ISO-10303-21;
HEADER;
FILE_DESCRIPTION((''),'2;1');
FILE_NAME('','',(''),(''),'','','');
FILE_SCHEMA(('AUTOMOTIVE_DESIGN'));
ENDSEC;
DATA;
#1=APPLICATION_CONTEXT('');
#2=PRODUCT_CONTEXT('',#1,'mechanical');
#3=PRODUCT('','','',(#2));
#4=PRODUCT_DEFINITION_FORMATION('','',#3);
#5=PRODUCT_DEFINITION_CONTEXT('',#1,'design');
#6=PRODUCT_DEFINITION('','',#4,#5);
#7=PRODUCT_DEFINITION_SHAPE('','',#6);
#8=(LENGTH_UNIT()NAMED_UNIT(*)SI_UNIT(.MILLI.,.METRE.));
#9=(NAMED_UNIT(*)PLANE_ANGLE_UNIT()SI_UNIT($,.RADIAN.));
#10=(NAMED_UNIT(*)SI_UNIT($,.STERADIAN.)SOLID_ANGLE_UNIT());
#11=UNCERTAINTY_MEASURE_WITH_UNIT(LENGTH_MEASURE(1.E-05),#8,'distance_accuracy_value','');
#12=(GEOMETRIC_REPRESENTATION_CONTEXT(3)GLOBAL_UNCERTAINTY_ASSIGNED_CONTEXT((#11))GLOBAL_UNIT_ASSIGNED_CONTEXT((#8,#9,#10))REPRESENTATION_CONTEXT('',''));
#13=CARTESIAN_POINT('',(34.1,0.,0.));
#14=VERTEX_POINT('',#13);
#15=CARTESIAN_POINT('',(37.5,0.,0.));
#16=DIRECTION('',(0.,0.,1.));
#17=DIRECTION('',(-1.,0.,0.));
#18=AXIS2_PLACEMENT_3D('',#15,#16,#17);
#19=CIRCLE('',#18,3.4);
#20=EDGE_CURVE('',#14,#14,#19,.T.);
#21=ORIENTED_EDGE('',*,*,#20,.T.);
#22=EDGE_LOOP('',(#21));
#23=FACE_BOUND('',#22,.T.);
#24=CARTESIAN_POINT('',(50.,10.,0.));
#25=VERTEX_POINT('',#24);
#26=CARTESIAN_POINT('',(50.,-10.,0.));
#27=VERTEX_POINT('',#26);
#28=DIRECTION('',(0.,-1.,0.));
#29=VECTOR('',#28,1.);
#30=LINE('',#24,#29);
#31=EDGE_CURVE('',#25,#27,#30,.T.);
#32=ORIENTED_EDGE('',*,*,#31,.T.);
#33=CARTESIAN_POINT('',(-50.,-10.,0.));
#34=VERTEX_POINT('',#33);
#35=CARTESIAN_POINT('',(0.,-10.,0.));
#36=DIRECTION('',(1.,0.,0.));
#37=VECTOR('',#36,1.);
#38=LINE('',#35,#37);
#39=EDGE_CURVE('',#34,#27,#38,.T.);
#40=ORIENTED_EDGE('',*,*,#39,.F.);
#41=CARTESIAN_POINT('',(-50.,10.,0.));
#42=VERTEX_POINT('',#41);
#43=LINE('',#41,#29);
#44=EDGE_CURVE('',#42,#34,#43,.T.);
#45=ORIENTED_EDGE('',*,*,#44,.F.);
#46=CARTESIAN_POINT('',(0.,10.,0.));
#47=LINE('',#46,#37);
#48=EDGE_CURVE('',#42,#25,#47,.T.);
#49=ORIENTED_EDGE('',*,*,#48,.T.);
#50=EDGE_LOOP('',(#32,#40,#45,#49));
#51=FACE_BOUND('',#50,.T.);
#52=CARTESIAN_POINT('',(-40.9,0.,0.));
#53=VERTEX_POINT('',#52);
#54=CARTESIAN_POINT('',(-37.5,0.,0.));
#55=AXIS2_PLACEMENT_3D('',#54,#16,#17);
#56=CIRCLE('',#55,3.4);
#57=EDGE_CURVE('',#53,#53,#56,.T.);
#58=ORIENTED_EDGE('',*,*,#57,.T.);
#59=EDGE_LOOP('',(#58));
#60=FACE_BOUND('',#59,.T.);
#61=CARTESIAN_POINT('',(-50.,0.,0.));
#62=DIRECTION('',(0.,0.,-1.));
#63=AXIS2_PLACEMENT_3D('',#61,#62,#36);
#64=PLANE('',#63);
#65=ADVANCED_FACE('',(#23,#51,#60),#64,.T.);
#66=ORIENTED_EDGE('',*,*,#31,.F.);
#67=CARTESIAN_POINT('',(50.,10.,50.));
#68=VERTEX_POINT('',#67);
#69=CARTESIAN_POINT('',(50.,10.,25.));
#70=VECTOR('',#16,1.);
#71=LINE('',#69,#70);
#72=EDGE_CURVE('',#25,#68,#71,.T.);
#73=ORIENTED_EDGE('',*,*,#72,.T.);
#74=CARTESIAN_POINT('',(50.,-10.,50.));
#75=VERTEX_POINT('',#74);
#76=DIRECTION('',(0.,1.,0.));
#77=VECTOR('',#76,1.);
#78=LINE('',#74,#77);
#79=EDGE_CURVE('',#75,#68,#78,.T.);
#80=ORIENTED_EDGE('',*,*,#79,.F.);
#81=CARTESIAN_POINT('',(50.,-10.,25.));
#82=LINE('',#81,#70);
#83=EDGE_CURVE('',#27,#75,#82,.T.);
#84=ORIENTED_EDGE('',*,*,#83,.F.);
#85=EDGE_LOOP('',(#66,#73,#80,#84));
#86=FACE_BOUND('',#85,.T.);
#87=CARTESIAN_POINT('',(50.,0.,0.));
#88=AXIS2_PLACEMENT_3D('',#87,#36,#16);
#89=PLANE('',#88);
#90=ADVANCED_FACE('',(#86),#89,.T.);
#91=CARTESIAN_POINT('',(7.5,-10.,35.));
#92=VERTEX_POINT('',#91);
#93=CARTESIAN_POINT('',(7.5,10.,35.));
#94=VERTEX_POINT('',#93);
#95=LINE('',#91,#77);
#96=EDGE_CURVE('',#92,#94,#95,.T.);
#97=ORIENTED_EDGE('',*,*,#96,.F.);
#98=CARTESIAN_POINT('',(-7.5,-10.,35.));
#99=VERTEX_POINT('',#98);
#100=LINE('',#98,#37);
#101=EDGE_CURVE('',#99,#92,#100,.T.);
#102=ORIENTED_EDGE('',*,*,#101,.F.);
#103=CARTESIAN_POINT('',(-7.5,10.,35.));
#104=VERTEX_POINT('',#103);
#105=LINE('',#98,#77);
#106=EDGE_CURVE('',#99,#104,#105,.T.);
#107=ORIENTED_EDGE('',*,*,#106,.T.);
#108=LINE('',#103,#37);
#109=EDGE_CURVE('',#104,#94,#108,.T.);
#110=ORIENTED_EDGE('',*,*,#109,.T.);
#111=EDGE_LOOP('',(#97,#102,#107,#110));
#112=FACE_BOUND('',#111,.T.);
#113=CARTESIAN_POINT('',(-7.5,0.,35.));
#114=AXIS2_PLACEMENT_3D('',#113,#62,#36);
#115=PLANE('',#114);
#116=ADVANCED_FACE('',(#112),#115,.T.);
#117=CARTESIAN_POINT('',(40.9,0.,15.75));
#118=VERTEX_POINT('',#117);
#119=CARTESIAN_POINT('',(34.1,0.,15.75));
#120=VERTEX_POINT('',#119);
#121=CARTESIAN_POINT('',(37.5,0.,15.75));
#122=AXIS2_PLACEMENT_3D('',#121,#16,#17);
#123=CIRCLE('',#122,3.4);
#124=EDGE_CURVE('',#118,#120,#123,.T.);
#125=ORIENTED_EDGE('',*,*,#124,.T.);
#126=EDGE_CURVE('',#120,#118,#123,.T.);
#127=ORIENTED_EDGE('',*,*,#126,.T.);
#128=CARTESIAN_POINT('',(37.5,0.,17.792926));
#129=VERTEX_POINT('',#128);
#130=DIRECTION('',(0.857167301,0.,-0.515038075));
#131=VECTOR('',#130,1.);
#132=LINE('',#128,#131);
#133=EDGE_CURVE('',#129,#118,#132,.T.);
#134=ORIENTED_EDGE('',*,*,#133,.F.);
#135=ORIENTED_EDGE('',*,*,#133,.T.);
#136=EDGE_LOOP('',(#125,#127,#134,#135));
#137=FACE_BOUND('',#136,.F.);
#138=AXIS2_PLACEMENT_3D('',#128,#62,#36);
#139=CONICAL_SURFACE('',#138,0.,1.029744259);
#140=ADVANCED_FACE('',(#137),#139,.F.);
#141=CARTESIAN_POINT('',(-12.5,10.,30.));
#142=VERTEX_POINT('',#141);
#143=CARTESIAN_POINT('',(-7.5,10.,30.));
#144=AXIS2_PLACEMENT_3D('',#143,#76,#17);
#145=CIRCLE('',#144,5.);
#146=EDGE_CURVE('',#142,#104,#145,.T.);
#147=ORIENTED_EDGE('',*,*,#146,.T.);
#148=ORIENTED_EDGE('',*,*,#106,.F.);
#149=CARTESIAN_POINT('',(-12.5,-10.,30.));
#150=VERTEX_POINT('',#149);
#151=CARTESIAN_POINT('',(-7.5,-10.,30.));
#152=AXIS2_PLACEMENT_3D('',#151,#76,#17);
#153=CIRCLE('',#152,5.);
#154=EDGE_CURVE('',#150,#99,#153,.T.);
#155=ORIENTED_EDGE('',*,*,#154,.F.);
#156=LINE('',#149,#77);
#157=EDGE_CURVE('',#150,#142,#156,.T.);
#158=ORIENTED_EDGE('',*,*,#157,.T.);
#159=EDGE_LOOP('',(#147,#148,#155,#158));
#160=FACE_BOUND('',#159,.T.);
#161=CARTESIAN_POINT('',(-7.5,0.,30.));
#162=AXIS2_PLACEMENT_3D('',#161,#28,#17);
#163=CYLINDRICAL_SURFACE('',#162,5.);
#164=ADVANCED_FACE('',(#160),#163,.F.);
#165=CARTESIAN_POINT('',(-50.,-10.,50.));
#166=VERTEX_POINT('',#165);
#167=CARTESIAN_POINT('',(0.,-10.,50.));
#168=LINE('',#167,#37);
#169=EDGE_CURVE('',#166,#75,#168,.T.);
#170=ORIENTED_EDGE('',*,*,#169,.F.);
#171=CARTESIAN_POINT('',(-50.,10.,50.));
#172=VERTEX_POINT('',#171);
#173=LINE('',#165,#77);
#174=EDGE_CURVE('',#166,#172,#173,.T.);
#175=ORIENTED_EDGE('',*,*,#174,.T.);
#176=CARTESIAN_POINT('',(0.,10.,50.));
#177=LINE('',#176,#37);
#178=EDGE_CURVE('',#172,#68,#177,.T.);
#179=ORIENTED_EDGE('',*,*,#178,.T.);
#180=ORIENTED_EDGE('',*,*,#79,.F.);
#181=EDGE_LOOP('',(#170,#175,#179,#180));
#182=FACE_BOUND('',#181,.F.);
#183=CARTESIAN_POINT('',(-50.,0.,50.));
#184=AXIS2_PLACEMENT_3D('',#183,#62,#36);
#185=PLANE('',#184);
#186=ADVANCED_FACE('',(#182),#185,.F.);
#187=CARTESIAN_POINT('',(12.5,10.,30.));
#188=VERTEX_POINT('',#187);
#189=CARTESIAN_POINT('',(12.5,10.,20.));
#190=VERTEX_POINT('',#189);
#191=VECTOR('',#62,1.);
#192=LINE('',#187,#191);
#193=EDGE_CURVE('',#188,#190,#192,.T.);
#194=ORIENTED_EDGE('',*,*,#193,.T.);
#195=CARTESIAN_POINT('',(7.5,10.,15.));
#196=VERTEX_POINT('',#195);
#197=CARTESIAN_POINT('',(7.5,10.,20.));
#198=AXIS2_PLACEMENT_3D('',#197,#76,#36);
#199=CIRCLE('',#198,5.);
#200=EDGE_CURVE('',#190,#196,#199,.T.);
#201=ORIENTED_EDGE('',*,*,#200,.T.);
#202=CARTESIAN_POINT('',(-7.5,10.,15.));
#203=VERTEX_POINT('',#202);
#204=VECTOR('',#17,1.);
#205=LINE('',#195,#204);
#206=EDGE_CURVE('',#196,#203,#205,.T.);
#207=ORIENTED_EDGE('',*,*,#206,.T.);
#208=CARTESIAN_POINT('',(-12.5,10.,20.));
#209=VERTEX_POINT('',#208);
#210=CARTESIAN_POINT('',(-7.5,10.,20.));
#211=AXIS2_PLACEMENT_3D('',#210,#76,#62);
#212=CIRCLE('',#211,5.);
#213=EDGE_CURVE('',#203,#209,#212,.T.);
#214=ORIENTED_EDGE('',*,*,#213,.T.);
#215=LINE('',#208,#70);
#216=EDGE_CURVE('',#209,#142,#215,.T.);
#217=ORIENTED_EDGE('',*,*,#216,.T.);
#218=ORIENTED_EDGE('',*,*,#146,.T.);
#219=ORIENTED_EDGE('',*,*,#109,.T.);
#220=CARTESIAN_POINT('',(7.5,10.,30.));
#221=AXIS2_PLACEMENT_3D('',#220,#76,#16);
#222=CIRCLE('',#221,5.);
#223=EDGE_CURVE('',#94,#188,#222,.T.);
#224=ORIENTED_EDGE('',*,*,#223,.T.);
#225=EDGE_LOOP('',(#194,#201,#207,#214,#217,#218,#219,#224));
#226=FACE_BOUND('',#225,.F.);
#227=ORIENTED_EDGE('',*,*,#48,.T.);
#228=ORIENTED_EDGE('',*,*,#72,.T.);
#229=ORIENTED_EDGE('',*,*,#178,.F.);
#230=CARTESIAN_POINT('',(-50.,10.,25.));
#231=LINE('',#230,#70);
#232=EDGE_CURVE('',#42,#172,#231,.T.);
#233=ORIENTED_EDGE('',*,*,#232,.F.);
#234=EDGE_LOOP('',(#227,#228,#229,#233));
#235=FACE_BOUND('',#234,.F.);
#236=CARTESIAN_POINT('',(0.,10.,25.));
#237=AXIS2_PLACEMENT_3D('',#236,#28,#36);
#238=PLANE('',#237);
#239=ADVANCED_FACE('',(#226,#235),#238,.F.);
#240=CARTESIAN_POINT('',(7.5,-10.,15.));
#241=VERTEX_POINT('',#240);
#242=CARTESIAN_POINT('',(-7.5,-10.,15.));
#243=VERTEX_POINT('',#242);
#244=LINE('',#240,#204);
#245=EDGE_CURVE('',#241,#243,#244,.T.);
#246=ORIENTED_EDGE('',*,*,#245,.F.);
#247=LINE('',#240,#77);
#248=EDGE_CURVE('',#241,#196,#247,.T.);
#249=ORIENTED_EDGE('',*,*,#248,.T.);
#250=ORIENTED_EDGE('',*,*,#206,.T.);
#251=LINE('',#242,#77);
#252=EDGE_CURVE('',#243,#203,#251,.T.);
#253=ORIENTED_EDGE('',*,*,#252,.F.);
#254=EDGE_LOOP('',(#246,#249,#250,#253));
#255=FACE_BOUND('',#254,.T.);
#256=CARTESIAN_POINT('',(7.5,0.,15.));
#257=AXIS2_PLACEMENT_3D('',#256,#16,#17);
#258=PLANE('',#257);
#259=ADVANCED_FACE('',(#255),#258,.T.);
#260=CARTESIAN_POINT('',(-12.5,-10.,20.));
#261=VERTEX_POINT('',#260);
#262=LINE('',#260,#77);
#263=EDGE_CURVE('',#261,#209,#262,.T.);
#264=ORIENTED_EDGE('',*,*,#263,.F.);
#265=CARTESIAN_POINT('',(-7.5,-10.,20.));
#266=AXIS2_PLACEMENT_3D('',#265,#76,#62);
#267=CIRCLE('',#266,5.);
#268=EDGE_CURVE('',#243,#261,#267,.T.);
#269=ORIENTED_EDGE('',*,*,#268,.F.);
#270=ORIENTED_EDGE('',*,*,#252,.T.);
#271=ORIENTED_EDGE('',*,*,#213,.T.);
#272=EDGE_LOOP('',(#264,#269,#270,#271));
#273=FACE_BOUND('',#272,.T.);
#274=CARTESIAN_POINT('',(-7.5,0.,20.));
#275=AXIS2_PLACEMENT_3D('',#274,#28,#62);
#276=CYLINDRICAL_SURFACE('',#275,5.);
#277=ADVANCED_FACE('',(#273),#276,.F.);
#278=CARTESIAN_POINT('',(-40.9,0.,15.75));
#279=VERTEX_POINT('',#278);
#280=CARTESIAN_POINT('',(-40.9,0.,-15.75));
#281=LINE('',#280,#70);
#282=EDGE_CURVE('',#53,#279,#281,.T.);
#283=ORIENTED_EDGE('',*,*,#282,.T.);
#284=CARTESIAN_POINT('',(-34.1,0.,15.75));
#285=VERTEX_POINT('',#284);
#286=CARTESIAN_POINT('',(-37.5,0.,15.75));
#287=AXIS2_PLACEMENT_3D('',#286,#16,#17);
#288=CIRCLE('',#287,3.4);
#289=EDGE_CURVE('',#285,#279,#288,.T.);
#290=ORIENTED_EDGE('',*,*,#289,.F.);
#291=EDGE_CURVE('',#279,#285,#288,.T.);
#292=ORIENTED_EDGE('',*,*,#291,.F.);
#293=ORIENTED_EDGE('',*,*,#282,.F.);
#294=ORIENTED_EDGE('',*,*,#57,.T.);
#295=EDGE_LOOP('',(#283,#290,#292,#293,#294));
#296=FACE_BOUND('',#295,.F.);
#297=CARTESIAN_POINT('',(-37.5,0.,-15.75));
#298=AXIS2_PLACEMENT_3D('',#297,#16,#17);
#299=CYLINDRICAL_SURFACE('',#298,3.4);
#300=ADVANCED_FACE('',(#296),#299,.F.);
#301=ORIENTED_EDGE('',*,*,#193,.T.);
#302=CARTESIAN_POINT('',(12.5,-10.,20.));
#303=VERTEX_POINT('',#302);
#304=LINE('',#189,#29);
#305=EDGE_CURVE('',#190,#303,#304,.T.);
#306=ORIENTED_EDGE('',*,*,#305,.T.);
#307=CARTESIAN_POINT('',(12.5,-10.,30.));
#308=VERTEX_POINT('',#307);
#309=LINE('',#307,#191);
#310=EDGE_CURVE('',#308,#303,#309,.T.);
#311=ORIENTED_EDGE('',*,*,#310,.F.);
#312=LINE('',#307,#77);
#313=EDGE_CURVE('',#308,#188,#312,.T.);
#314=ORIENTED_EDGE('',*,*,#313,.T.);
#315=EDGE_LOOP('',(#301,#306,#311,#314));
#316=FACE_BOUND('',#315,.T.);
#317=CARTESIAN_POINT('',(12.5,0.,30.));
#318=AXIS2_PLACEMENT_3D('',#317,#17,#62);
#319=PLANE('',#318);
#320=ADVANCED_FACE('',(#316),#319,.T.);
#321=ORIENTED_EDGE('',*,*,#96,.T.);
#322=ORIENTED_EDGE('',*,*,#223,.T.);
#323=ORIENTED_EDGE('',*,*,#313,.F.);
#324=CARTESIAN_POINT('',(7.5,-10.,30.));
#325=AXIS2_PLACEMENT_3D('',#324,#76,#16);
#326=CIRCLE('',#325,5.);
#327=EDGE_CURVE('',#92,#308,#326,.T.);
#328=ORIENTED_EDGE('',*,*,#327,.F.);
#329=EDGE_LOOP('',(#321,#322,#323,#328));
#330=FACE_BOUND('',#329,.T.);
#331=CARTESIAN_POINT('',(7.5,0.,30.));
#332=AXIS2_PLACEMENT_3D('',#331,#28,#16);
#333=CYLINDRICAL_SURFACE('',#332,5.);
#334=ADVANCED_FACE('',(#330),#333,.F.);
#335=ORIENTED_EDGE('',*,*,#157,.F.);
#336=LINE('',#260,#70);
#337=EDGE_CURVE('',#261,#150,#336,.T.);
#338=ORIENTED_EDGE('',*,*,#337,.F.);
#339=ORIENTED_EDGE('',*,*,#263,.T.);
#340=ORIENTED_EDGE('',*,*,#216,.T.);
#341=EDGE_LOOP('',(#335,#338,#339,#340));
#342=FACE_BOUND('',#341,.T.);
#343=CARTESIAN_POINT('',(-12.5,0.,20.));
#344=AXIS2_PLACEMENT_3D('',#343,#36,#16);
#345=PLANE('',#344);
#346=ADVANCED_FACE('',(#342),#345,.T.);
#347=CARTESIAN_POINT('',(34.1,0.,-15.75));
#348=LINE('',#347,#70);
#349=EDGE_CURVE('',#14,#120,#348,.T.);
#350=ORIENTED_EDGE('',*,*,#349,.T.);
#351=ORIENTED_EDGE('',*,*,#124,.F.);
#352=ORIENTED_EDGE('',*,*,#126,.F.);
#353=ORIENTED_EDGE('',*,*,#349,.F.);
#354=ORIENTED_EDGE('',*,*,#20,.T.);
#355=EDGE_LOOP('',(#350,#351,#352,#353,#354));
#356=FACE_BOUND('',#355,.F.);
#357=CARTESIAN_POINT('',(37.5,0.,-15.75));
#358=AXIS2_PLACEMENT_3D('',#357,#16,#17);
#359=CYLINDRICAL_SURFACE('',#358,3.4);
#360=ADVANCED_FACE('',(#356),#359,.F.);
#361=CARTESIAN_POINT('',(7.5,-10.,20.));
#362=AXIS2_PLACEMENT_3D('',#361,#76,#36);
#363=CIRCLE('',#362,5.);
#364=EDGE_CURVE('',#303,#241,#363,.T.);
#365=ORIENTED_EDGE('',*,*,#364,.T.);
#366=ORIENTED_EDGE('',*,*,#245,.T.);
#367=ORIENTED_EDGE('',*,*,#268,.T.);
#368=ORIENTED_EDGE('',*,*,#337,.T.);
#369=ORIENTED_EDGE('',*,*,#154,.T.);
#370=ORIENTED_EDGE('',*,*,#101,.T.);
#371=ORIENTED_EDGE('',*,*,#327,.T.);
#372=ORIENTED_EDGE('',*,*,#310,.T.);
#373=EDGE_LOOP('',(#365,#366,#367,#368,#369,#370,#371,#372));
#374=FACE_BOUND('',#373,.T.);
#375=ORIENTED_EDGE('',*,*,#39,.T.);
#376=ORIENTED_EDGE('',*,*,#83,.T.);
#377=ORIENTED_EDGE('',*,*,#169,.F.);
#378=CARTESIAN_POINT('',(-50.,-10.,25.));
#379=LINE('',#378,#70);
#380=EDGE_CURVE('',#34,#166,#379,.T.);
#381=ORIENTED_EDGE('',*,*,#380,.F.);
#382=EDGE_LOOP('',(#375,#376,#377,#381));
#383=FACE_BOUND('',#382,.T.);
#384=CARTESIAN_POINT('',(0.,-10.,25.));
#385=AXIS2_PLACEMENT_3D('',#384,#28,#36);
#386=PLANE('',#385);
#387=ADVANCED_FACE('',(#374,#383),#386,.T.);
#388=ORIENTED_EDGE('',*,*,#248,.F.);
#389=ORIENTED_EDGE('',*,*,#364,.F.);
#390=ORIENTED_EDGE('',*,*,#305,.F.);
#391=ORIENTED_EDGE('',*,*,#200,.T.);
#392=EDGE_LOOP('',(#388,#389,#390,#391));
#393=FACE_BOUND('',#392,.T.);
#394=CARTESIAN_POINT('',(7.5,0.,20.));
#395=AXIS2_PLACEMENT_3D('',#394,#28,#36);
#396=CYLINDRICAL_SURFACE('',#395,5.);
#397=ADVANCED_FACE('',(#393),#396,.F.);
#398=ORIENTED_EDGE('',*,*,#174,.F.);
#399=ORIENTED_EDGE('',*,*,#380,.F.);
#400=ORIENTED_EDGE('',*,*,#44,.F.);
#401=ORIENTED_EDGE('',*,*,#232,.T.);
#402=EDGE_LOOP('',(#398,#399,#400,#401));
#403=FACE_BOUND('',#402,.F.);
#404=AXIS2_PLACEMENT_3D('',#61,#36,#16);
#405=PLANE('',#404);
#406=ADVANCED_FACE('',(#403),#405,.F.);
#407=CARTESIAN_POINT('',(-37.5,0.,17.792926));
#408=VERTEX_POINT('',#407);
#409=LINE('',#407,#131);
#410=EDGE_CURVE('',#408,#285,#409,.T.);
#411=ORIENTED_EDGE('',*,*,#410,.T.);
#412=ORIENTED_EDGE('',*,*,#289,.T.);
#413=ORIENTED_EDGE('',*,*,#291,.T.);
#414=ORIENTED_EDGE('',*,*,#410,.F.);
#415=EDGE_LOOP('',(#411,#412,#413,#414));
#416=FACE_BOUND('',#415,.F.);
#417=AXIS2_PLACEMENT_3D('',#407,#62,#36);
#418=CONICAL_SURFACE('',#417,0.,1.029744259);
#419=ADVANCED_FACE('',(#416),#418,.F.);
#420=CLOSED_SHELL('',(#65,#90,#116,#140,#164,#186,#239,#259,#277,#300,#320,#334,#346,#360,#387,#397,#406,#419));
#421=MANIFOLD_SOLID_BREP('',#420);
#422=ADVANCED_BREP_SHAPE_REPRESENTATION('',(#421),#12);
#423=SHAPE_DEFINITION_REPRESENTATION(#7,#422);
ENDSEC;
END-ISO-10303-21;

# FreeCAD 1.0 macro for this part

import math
import FreeCAD as App
import Part
import Sketcher
from FreeCAD import Vector


def add_polygon(sketch, points):
    """Adds a closed chain of lines whose ends are joined by coincident constraints."""
    first, n = sketch.GeometryCount, len(points)
    for a, b in zip(points, points[1:] + points[:1]):
        sketch.addGeometry(Part.LineSegment(App.Vector(*a, 0), App.Vector(*b, 0)), False)
    for i in range(n):
        sketch.addConstraint(Sketcher.Constraint("Coincident", first + i, 2, first + (i + 1) % n, 1))

doc = App.newDocument("Part")
body = doc.addObject("PartDesign::Body", "Body")

# Sketch on XZ plane
sketch1 = body.newObject("Sketcher::SketchObject", "Sketch")
sketch1.AttachmentSupport = (doc.getObject("XZ_Plane"), [""])
sketch1.MapMode = "FlatFace"
add_polygon(sketch1, [(-50, 50), (-50, 0), (50, 0), (50, 50)])  # lines 0-3
sketch1.addGeometry(Part.LineSegment(Vector(12, 30, 0), Vector(12, 20, 0)), False)  # 4
sketch1.addGeometry(Part.ArcOfCircle(Part.Circle(Vector(8, 20, 0), Vector(0, 0, 1), 5), math.radians(-90), math.radians(0)), False)  # 5
sketch1.addGeometry(Part.LineSegment(Vector(8, 15, 0), Vector(-8, 15, 0)), False)  # 6
sketch1.addGeometry(Part.ArcOfCircle(Part.Circle(Vector(-8, 20, 0), Vector(0, 0, 1), 5), math.radians(180), math.radians(270)), False)  # 7
sketch1.addGeometry(Part.LineSegment(Vector(-12, 20, 0), Vector(-12, 30, 0)), False)  # 8
sketch1.addGeometry(Part.ArcOfCircle(Part.Circle(Vector(-8, 30, 0), Vector(0, 0, 1), 5), math.radians(90), math.radians(180)), False)  # 9
sketch1.addGeometry(Part.LineSegment(Vector(-8, 35, 0), Vector(8, 35, 0)), False)  # 10
sketch1.addGeometry(Part.ArcOfCircle(Part.Circle(Vector(8, 30, 0), Vector(0, 0, 1), 5), math.radians(0), math.radians(90)), False)  # 11
sketch1.addConstraint([
    Sketcher.Constraint("Tangent", 4, 2, 5, 2),
    Sketcher.Constraint("Tangent", 5, 1, 6, 1),
    Sketcher.Constraint("Tangent", 6, 2, 7, 2),
    Sketcher.Constraint("Tangent", 7, 1, 8, 1),
    Sketcher.Constraint("Tangent", 8, 2, 9, 2),
    Sketcher.Constraint("Tangent", 9, 1, 10, 1),
    Sketcher.Constraint("Tangent", 10, 2, 11, 2),
    Sketcher.Constraint("Tangent", 11, 1, 4, 1),
    Sketcher.Constraint("Vertical", 0),
    Sketcher.Constraint("Horizontal", 1),
    Sketcher.Constraint("Vertical", 2),
    Sketcher.Constraint("Horizontal", 3),
    Sketcher.Constraint("Vertical", 4),
    Sketcher.Constraint("Horizontal", 6),
    Sketcher.Constraint("Vertical", 8),
    Sketcher.Constraint("Horizontal", 10),
    Sketcher.Constraint("Equal", 5, 7),
    Sketcher.Constraint("Equal", 7, 9),
    Sketcher.Constraint("Equal", 9, 11),
    Sketcher.Constraint("Symmetric", 0, 2, 1, 2, -1, 1),
    Sketcher.Constraint("Radius", 5, 5.0),
    Sketcher.Constraint("DistanceX", 1, 1, 1, 2, 100.0),
    Sketcher.Constraint("DistanceX", 6, 2, 6, 1, 15.0),
    Sketcher.Constraint("DistanceY", 0, 2, 0, 1, 50.0),
    Sketcher.Constraint("DistanceY", 4, 2, 4, 1, 10.0),
    Sketcher.Constraint("DistanceY", -1, 1, 5, 3, 20.0),
    Sketcher.Constraint("DistanceX", -1, 1, 5, 3, 7.5),
])
pad1 = body.newObject("PartDesign::Pad", "Pad")
pad1.Profile = sketch1
pad1.Length = 20
pad1.Midplane = True

# Sketch on XY plane
sketch2 = body.newObject("Sketcher::SketchObject", "Sketch001")
sketch2.AttachmentSupport = (doc.getObject("XY_Plane"), [""])
sketch2.MapMode = "FlatFace"
sketch2.addGeometry([
    Part.Circle(Vector(-37.5, 0, 0), Vector(0, 0, 1), 3.4),
    Part.Circle(Vector(37.5, 0, 0), Vector(0, 0, 1), 3.4),
], False)
sketch2.addConstraint([
    Sketcher.Constraint("Equal", 0, 1),
    Sketcher.Constraint("Symmetric", 0, 3, 1, 3, -1, 1),
    Sketcher.Constraint("PointOnObject", 0, 3, -1),
    Sketcher.Constraint("Diameter", 0, 6.8),
    Sketcher.Constraint("DistanceX", 0, 3, 1, 3, 75.0),
])
doc.recompute()
hole = body.newObject("PartDesign::Hole", "Hole")
hole.Profile = sketch2
hole.ThreadType = "None"
hole.Diameter = 6.8
hole.DepthType = "Dimension"
hole.Depth = 15.75
hole.DrillPoint = "Angled"
hole.DrillPointAngle = 118
hole.Reversed = True

doc.recompute()
